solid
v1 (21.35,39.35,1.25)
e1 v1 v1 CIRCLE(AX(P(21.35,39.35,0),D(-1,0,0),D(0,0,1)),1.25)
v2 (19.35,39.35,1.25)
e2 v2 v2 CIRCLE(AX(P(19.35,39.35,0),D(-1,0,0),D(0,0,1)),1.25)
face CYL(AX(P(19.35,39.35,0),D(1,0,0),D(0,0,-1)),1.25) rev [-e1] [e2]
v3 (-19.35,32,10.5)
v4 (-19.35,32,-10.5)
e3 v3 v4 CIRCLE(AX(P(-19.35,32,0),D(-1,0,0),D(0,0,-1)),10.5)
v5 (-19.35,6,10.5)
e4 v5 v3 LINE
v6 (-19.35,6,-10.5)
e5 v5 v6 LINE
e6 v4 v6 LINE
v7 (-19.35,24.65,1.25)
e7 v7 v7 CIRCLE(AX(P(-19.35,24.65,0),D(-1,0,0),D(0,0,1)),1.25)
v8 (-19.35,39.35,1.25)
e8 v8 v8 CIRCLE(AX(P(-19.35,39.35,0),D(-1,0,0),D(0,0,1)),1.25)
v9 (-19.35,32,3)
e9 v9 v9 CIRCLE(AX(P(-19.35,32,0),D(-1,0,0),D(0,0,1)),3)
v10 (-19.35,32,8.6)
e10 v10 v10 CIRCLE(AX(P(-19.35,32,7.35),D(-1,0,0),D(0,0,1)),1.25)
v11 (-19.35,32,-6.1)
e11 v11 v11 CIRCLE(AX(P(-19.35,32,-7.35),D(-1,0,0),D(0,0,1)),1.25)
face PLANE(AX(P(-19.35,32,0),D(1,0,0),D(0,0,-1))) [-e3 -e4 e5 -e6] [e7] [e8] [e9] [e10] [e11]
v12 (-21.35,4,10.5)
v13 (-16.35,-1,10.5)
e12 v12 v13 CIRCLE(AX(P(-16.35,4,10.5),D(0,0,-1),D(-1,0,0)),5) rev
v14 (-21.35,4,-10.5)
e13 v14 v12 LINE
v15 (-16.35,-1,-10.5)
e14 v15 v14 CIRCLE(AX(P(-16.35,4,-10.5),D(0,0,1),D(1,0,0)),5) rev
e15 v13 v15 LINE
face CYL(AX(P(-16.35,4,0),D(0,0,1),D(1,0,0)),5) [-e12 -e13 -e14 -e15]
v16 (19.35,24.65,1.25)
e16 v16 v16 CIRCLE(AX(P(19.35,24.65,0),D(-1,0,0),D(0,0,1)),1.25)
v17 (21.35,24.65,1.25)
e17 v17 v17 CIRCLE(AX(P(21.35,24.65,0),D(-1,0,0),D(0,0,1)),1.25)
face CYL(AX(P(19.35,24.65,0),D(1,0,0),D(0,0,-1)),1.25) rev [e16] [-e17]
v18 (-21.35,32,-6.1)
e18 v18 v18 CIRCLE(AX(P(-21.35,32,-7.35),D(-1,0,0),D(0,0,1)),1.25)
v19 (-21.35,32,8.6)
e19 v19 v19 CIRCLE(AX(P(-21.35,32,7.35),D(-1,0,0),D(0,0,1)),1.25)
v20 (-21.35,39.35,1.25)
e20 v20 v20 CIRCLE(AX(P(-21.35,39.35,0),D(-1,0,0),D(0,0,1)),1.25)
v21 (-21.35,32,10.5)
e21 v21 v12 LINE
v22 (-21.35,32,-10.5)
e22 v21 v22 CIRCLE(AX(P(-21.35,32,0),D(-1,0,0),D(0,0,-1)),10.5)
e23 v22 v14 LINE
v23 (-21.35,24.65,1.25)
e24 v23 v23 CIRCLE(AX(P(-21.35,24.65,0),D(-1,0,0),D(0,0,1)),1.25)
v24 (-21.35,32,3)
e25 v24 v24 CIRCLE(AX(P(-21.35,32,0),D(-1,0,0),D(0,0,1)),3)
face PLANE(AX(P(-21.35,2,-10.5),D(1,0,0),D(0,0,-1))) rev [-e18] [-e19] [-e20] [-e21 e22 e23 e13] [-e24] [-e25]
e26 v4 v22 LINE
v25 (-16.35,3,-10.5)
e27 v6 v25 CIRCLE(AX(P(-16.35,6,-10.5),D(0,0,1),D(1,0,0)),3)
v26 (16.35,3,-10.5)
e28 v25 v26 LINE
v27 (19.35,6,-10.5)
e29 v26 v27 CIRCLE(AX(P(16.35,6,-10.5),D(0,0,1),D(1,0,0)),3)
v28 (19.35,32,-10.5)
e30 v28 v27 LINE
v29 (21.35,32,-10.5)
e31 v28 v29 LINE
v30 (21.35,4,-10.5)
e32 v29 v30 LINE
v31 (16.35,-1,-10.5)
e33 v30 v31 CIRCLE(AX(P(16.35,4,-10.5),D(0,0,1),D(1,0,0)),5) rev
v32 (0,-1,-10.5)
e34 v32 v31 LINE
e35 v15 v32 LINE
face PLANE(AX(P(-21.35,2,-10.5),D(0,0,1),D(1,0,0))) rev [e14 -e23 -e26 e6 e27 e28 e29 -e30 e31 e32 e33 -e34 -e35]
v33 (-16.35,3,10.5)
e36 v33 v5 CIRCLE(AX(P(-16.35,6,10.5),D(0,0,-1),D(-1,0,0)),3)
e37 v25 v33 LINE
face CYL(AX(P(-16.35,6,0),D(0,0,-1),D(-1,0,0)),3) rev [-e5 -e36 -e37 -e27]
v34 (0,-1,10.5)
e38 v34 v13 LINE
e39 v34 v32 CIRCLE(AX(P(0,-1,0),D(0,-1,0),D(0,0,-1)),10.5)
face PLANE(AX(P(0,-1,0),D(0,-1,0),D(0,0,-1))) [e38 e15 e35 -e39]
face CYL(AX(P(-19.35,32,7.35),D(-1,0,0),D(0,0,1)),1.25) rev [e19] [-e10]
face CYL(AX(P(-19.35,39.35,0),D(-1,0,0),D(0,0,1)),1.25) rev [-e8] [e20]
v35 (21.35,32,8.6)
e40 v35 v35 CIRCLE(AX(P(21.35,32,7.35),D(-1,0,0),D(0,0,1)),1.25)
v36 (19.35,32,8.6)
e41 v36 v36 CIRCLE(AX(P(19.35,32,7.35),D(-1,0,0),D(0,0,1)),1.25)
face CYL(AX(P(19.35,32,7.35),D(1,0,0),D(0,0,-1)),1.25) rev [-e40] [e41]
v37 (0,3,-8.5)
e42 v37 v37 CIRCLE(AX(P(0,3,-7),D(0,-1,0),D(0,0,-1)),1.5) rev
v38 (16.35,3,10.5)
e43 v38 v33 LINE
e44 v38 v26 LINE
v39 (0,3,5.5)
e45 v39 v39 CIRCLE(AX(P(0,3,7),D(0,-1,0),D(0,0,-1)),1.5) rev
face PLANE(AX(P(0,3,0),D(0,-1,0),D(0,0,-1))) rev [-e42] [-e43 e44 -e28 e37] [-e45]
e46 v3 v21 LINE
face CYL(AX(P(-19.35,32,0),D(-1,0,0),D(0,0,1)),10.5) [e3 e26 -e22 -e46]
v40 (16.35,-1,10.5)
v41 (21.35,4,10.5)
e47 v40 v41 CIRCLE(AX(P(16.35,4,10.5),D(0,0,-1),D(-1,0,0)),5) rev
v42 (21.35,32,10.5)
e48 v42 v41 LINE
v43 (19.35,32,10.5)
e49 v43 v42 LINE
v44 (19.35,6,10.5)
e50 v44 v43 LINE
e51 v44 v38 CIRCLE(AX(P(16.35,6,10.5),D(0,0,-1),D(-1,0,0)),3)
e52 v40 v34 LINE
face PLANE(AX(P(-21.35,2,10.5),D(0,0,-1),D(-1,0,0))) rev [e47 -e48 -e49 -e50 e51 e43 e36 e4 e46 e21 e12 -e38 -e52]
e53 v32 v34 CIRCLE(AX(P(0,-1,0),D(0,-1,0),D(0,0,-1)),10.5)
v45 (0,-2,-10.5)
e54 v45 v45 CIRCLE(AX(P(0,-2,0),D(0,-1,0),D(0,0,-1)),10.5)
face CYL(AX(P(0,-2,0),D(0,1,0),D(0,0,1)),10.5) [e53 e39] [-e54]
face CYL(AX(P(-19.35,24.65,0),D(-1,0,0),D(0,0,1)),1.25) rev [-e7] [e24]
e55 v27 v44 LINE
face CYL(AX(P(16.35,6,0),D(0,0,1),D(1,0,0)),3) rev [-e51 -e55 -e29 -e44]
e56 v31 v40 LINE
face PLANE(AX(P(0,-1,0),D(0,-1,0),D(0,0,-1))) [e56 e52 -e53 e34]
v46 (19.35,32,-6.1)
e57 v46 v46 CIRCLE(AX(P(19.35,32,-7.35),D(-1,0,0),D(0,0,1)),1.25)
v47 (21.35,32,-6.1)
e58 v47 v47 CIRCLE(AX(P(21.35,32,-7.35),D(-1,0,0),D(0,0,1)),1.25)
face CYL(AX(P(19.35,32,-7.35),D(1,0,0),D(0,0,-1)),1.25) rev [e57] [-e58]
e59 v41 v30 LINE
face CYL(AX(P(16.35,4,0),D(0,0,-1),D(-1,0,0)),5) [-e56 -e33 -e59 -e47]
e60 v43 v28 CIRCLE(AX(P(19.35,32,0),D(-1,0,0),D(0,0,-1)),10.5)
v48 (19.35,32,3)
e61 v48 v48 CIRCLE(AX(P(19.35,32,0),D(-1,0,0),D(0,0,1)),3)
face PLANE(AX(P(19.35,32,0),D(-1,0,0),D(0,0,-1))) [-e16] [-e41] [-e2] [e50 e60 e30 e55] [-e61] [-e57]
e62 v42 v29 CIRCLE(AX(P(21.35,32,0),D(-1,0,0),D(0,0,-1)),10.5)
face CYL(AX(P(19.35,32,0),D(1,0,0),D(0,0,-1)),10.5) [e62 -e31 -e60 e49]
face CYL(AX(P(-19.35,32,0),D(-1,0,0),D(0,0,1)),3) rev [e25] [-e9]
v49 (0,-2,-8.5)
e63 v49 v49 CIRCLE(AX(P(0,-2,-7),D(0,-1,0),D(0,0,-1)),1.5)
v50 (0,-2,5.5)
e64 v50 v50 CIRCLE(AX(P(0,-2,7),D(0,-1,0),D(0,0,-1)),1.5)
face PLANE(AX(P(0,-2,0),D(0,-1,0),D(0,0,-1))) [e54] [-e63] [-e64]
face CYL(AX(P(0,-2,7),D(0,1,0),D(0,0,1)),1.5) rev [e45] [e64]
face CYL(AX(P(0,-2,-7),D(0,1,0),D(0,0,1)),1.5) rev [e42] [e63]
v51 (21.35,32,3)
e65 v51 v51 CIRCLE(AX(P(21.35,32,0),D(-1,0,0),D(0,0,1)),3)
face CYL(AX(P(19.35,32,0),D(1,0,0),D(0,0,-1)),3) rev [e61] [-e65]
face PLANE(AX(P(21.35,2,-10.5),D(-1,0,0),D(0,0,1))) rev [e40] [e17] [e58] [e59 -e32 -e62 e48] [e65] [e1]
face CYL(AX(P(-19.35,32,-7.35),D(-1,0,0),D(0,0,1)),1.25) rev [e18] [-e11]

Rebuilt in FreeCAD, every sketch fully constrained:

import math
import FreeCAD as App
import Part
import Sketcher
from FreeCAD import Vector
Q = App.Units.Quantity


def edges_at(feature, points):
    """Names of the edges that pass closest to the given points."""
    edges = feature.Shape.Edges
    near = lambda p: min(range(len(edges)), key=lambda i: edges[i].distToShape(Part.Vertex(*p))[0])
    return sorted({f"Edge{near(p) + 1}" for p in points})

doc = App.newDocument("Part")
params = doc.addObject("Spreadsheet::Sheet", "Params")
for row, (alias, value) in enumerate([
    ("sketch1_diameter", "3 mm"),
    ("sketch1_height", "21 mm"),
    ("sketch1_width", "42.7 mm"),
    ("pad1_length", "2 mm"),
    ("sketch2_diameter", "6 mm"),
    ("sketch2_diameter2", "2.5 mm"),
    ("sketch2_radius", "10.5 mm"),
    ("sketch2_width", "30 mm"),
    ("pad2_length", "2 mm"),
    ("sketch3_height", "21 mm"),
    ("sketch3_width", "42.7 mm"),
    ("pad3_length", "1 mm"),
    ("pad3_length2", "3 mm"),
    ("sketch4_diameter", "21 mm"),
    ("sketch4_diameter2", "3 mm"),
    ("pad4_length", "1 mm"),
    ("fillet_radius", "3 mm"),
    ("fillet2_radius", "5 mm"),
    ("sketch5_diameter", "3 mm"),
    ("pocket1_length", "4 mm"),
], start=1):
    params.set(f"A{row}", alias)
    params.set(f"B{row}", "=" + value)
    params.setAlias(f"B{row}", alias)

body = doc.addObject("PartDesign::Body", "Body")

sketch1 = body.newObject("Sketcher::SketchObject", "Sketch")
sketch1.AttachmentSupport = (doc.getObject("XZ_Plane"), [""])
sketch1.MapMode = "FlatFace"
sketch1.addGeometry(Part.LineSegment(Vector(-21.35, -10.5, 0), Vector(-21.35, 10.5, 0)), False)
sketch1.addGeometry(Part.LineSegment(Vector(-21.35, 10.5, 0), Vector(21.35, 10.5, 0)), False)
sketch1.addGeometry(Part.LineSegment(Vector(21.35, 10.5, 0), Vector(21.35, -10.5, 0)), False)
sketch1.addGeometry(Part.LineSegment(Vector(21.35, -10.5, 0), Vector(-21.35, -10.5, 0)), False)
sketch1.addGeometry(Part.Circle(Vector(-7.5, 5, 0), Vector(0, 0, 1), 1.5), False)
sketch1.addGeometry(Part.Circle(Vector(7.5, 5, 0), Vector(0, 0, 1), 1.5), False)
sketch1.addGeometry(Part.BSplineCurve([Vector(0, -7.407272, 0), Vector(2.092471, -7.358009, 0), Vector(3.043739, -2.951913, 0), Vector(6.007732, -1.626733, 0), Vector(8.017951, -1.550908, 0)], [4, 1, 4], [0, 0.496822763, 1], False, 3, [1, 1, 1, 1, 1], False), False)
sketch1.addGeometry(Part.LineSegment(Vector(8.017951, -1.550908, 0), Vector(12.912588, -1.550908, 0)), False)
sketch1.addGeometry(Part.ArcOfCircle(Part.Circle(Vector(13.029613, 0.117026, 0), Vector(0, 0, 1), 1.672034), math.radians(-94.013412), math.radians(-4.013412)), False)
sketch1.addGeometry(Part.ArcOfCircle(Part.Circle(Vector(13.029613, -0.117026, 0), Vector(0, 0, 1), 1.672034), math.radians(4.013412), math.radians(94.013412)), False)
sketch1.addGeometry(Part.LineSegment(Vector(12.912588, 1.550908, 0), Vector(8.017951, 1.550908, 0)), False)
sketch1.addGeometry(Part.BSplineCurve([Vector(0, 7.407272, 0), Vector(2.092471, 7.358009, 0), Vector(3.043739, 2.951913, 0), Vector(6.007732, 1.626733, 0), Vector(8.017951, 1.550908, 0)], [4, 1, 4], [0, 0.496822763, 1], False, 3, [1, 1, 1, 1, 1], False), False)
sketch1.addGeometry(Part.BSplineCurve([Vector(0, 7.407272, 0), Vector(-2.092471, 7.358009, 0), Vector(-3.043739, 2.951913, 0), Vector(-6.007732, 1.626733, 0), Vector(-8.017951, 1.550908, 0)], [4, 1, 4], [0, 0.496822763, 1], False, 3, [1, 1, 1, 1, 1], False), False)
sketch1.addGeometry(Part.LineSegment(Vector(-8.017951, 1.550908, 0), Vector(-12.912588, 1.550908, 0)), False)
sketch1.addGeometry(Part.ArcOfCircle(Part.Circle(Vector(-13.029613, -0.117026, 0), Vector(0, 0, 1), 1.672034), math.radians(85.986588), math.radians(175.986588)), False)
sketch1.addGeometry(Part.ArcOfCircle(Part.Circle(Vector(-13.029613, 0.117026, 0), Vector(0, 0, 1), 1.672034), math.radians(-175.986588), math.radians(-85.986588)), False)
sketch1.addGeometry(Part.LineSegment(Vector(-12.912588, -1.550908, 0), Vector(-8.017951, -1.550908, 0)), False)
sketch1.addGeometry(Part.BSplineCurve([Vector(0, -7.407272, 0), Vector(-2.092471, -7.358009, 0), Vector(-3.043739, -2.951913, 0), Vector(-6.007732, -1.626733, 0), Vector(-8.017951, -1.550908, 0)], [4, 1, 4], [0, 0.496822763, 1], False, 3, [1, 1, 1, 1, 1], False), False)
sketch1.addGeometry(Part.Circle(Vector(-7.5, -5, 0), Vector(0, 0, 1), 1.5), False)
sketch1.addGeometry(Part.Circle(Vector(7.5, -5, 0), Vector(0, 0, 1), 1.5), False)
sketch1.addConstraint(Sketcher.Constraint("Block", 6))
sketch1.addConstraint(Sketcher.Constraint("Block", 11))
sketch1.addConstraint(Sketcher.Constraint("Block", 12))
sketch1.addConstraint(Sketcher.Constraint("Block", 17))
sketch1.addConstraint(Sketcher.Constraint("Coincident", 0, 2, 1, 1))
sketch1.addConstraint(Sketcher.Constraint("Coincident", 1, 2, 2, 1))
sketch1.addConstraint(Sketcher.Constraint("Coincident", 2, 2, 3, 1))
sketch1.addConstraint(Sketcher.Constraint("Coincident", 3, 2, 0, 1))
sketch1.addConstraint(Sketcher.Constraint("Coincident", 6, 2, 7, 1))
sketch1.addConstraint(Sketcher.Constraint("Coincident", 7, 2, 8, 1))
sketch1.addConstraint(Sketcher.Constraint("Coincident", 8, 2, 9, 1))
sketch1.addConstraint(Sketcher.Constraint("Coincident", 9, 2, 10, 1))
sketch1.addConstraint(Sketcher.Constraint("Coincident", 10, 2, 11, 2))
sketch1.addConstraint(Sketcher.Constraint("Coincident", 12, 2, 13, 1))
sketch1.addConstraint(Sketcher.Constraint("Coincident", 13, 2, 14, 1))
sketch1.addConstraint(Sketcher.Constraint("Coincident", 14, 2, 15, 1))
sketch1.addConstraint(Sketcher.Constraint("Coincident", 15, 2, 16, 1))
sketch1.addConstraint(Sketcher.Constraint("Coincident", 16, 2, 17, 2))
sketch1.addConstraint(Sketcher.Constraint("Vertical", 0))
sketch1.addConstraint(Sketcher.Constraint("Horizontal", 1))
sketch1.addConstraint(Sketcher.Constraint("Vertical", 2))
sketch1.addConstraint(Sketcher.Constraint("Horizontal", 3))
sketch1.addConstraint(Sketcher.Constraint("Horizontal", 7))
sketch1.addConstraint(Sketcher.Constraint("Horizontal", 10))
sketch1.addConstraint(Sketcher.Constraint("Horizontal", 13))
sketch1.addConstraint(Sketcher.Constraint("Horizontal", 16))
sketch1.addConstraint(Sketcher.Constraint("Equal", 4, 5))
sketch1.addConstraint(Sketcher.Constraint("Equal", 8, 9))
sketch1.addConstraint(Sketcher.Constraint("Equal", 9, 14))
sketch1.addConstraint(Sketcher.Constraint("Equal", 14, 15))
sketch1.addConstraint(Sketcher.Constraint("Equal", 5, 18))
sketch1.addConstraint(Sketcher.Constraint("Equal", 18, 19))
sketch1.addConstraint(Sketcher.Constraint("Symmetric", 8, 3, 14, 3, -1, 1))
sketch1.addConstraint(Sketcher.Constraint("Symmetric", 9, 3, 15, 3, -1, 1))
sketch1.addConstraint(Sketcher.Constraint("Symmetric", 5, 3, 18, 3, -1, 1))
sketch1.addConstraint(Sketcher.Constraint("Symmetric", 4, 3, 19, 3, -1, 1))
sketch1.addConstraint(Sketcher.Constraint("Symmetric", 0, 2, 2, 2, -1, 1))
sketch1.addConstraint(Sketcher.Constraint("Symmetric", 4, 3, 5, 3, -2))
sketch1.addConstraint(Sketcher.Constraint("Symmetric", 9, 3, 14, 3, -2))
sketch1.addConstraint(Sketcher.Constraint("Diameter", 4, Q("3 mm")))
sketch1.addConstraint(Sketcher.Constraint("DistanceY", 0, 1, 0, 2, Q("21 mm")))
sketch1.addConstraint(Sketcher.Constraint("DistanceX", 1, 1, 1, 2, Q("42.7 mm")))
sketch1.addConstraint(Sketcher.Constraint("DistanceY", -1, 1, 4, 3, Q("5 mm")))
sketch1.addConstraint(Sketcher.Constraint("DistanceX", 4, 3, 5, 3, Q("15 mm")))
sketch1.addConstraint(Sketcher.Constraint("Radius", 8, Q("1.672034 mm")))
sketch1.addConstraint(Sketcher.Constraint("DistanceX", 7, 1, 7, 2, Q("4.894637 mm")))
sketch1.addConstraint(Sketcher.Constraint("DistanceY", 9, 3, 8, 3, Q("0.234051 mm")))
sketch1.setExpression("Constraints[39]", "Params.sketch1_diameter")
sketch1.setExpression("Constraints[40]", "Params.sketch1_height")
sketch1.setExpression("Constraints[41]", "Params.sketch1_width")
pad1 = body.newObject("PartDesign::Pad", "Pad")
pad1.Profile = sketch1
pad1.setExpression("Length", "Params.pad1_length")
pad1.Reversed = True

sketch2 = body.newObject("Sketcher::SketchObject", "Sketch001")
sketch2.AttachmentSupport = (doc.getObject("YZ_Plane"), [""])
sketch2.MapMode = "FlatFace"
sketch2.AttachmentOffset = App.Placement(Vector(0, 0, -21.35), App.Rotation())
sketch2.addGeometry(Part.LineSegment(Vector(32, -10.5, 0), Vector(2, -10.5, 0)), False)
sketch2.addGeometry(Part.LineSegment(Vector(2, -10.5, 0), Vector(2, 10.5, 0)), False)
sketch2.addGeometry(Part.LineSegment(Vector(2, 10.5, 0), Vector(32, 10.5, 0)), False)
sketch2.addGeometry(Part.ArcOfCircle(Part.Circle(Vector(32, 0, 0), Vector(0, 0, 1), 10.5), math.radians(-90), math.radians(90)), False)
sketch2.addGeometry(Part.Circle(Vector(24.6, 0, 0), Vector(0, 0, 1), 1.2), False)
sketch2.addGeometry(Part.Circle(Vector(32, 7.3, 0), Vector(0, 0, 1), 1.2), False)
sketch2.addGeometry(Part.Circle(Vector(32, 0, 0), Vector(0, 0, 1), 3), False)
sketch2.addGeometry(Part.Circle(Vector(32, -7.3, 0), Vector(0, 0, 1), 1.2), False)
sketch2.addGeometry(Part.Circle(Vector(39.4, 0, 0), Vector(0, 0, 1), 1.2), False)
sketch2.addConstraint(Sketcher.Constraint("Coincident", 0, 2, 1, 1))
sketch2.addConstraint(Sketcher.Constraint("Coincident", 1, 2, 2, 1))
sketch2.addConstraint(Sketcher.Constraint("Tangent", 2, 2, 3, 2))
sketch2.addConstraint(Sketcher.Constraint("Tangent", 3, 1, 0, 1))
sketch2.addConstraint(Sketcher.Constraint("Horizontal", 0))
sketch2.addConstraint(Sketcher.Constraint("Vertical", 1))
sketch2.addConstraint(Sketcher.Constraint("Horizontal", 2))
sketch2.addConstraint(Sketcher.Constraint("Coincident", 6, 3, 3, 3))
sketch2.addConstraint(Sketcher.Constraint("Equal", 4, 5))
sketch2.addConstraint(Sketcher.Constraint("Equal", 5, 7))
sketch2.addConstraint(Sketcher.Constraint("Equal", 7, 8))
sketch2.addConstraint(Sketcher.Constraint("Symmetric", 5, 3, 7, 3, -1))
sketch2.addConstraint(Sketcher.Constraint("PointOnObject", 3, 3, -1))
sketch2.addConstraint(Sketcher.Constraint("PointOnObject", 4, 3, -1))
sketch2.addConstraint(Sketcher.Constraint("PointOnObject", 8, 3, -1))
sketch2.addConstraint(Sketcher.Constraint("Vertical", 3, 3, 5, 3))
sketch2.addConstraint(Sketcher.Constraint("Diameter", 6, Q("6 mm")))
sketch2.addConstraint(Sketcher.Constraint("Diameter", 4, Q("2.5 mm")))
sketch2.addConstraint(Sketcher.Constraint("Radius", 3, Q("10.5 mm")))
sketch2.addConstraint(Sketcher.Constraint("DistanceX", 0, 2, 0, 1, Q("30 mm")))
sketch2.addConstraint(Sketcher.Constraint("DistanceX", -1, 1, 3, 3, Q("32 mm")))
sketch2.addConstraint(Sketcher.Constraint("DistanceY", 7, 3, 5, 3, Q("14.7 mm")))
sketch2.addConstraint(Sketcher.Constraint("DistanceX", 4, 3, 8, 3, Q("14.7 mm")))
sketch2.addConstraint(Sketcher.Constraint("DistanceX", -1, 1, 4, 3, Q("24.65 mm")))
sketch2.setExpression("Constraints[16]", "Params.sketch2_diameter")
sketch2.setExpression("Constraints[17]", "Params.sketch2_diameter2")
sketch2.setExpression("Constraints[18]", "Params.sketch2_radius")
sketch2.setExpression("Constraints[19]", "Params.sketch2_width")
pad2 = body.newObject("PartDesign::Pad", "Pad001")
pad2.Profile = sketch2
pad2.setExpression("Length", "Params.pad2_length")
doc.recompute()

mirrored = body.newObject("PartDesign::Mirrored", "Mirrored")
mirrored.Originals = [pad2]
mirrored.MirrorPlane = (doc.getObject("YZ_Plane"), [""])
body.Tip = mirrored

sketch3 = body.newObject("Sketcher::SketchObject", "Sketch002")
sketch3.AttachmentSupport = (doc.getObject("XZ_Plane"), [""])
sketch3.MapMode = "FlatFace"
sketch3.addGeometry(Part.LineSegment(Vector(-21, 10, 0), Vector(-21, -10, 0)), False)
sketch3.addGeometry(Part.LineSegment(Vector(-21, -10, 0), Vector(21, -10, 0)), False)
sketch3.addGeometry(Part.LineSegment(Vector(21, -10, 0), Vector(21, 10, 0)), False)
sketch3.addGeometry(Part.LineSegment(Vector(21, 10, 0), Vector(-21, 10, 0)), False)
sketch3.addConstraint(Sketcher.Constraint("Coincident", 0, 2, 1, 1))
sketch3.addConstraint(Sketcher.Constraint("Coincident", 1, 2, 2, 1))
sketch3.addConstraint(Sketcher.Constraint("Coincident", 2, 2, 3, 1))
sketch3.addConstraint(Sketcher.Constraint("Coincident", 3, 2, 0, 1))
sketch3.addConstraint(Sketcher.Constraint("Vertical", 0))
sketch3.addConstraint(Sketcher.Constraint("Horizontal", 1))
sketch3.addConstraint(Sketcher.Constraint("Vertical", 2))
sketch3.addConstraint(Sketcher.Constraint("Horizontal", 3))
sketch3.addConstraint(Sketcher.Constraint("Symmetric", 0, 2, 2, 2, -1, 1))
sketch3.addConstraint(Sketcher.Constraint("DistanceY", 0, 2, 0, 1, Q("21 mm")))
sketch3.addConstraint(Sketcher.Constraint("DistanceX", 1, 1, 1, 2, Q("42.7 mm")))
sketch3.setExpression("Constraints[9]", "Params.sketch3_height")
sketch3.setExpression("Constraints[10]", "Params.sketch3_width")
pad3 = body.newObject("PartDesign::Pad", "Pad002")
pad3.Profile = sketch3
pad3.Type = "TwoLengths"
pad3.setExpression("Length", "Params.pad3_length")
pad3.setExpression("Length2", "Params.pad3_length2")

sketch4 = body.newObject("Sketcher::SketchObject", "Sketch003")
sketch4.AttachmentSupport = (doc.getObject("XZ_Plane"), [""])
sketch4.MapMode = "FlatFace"
sketch4.AttachmentOffset = App.Placement(Vector(0, 0, 1), App.Rotation())
sketch4.addGeometry(Part.Circle(Vector(0, 0, 0), Vector(0, 0, 1), 10.5), False)
sketch4.addGeometry(Part.Circle(Vector(0, 7, 0), Vector(0, 0, 1), 1.5), False)
sketch4.addGeometry(Part.Circle(Vector(0, -7, 0), Vector(0, 0, 1), 1.5), False)
sketch4.addConstraint(Sketcher.Constraint("Coincident", 0, 3, -1, 1))
sketch4.addConstraint(Sketcher.Constraint("Equal", 1, 2))
sketch4.addConstraint(Sketcher.Constraint("Symmetric", 1, 3, 2, 3, -1, 1))
sketch4.addConstraint(Sketcher.Constraint("PointOnObject", 1, 3, -2))
sketch4.addConstraint(Sketcher.Constraint("Diameter", 0, Q("21 mm")))
sketch4.addConstraint(Sketcher.Constraint("Diameter", 1, Q("3 mm")))
sketch4.addConstraint(Sketcher.Constraint("DistanceY", -1, 1, 1, 3, Q("7 mm")))
sketch4.setExpression("Constraints[4]", "Params.sketch4_diameter")
sketch4.setExpression("Constraints[5]", "Params.sketch4_diameter2")
pad4 = body.newObject("PartDesign::Pad", "Pad003")
pad4.Profile = sketch4
pad4.setExpression("Length", "Params.pad4_length")
doc.recompute()

fillet = body.newObject("PartDesign::Fillet", "Fillet")
fillet.Base = (pad4, edges_at(pad4, [(19.35, 3, 0), (-19.35, 3, 0)]))
fillet.setExpression("Radius", "Params.fillet_radius")
doc.recompute()

fillet2 = body.newObject("PartDesign::Fillet", "Fillet001")
fillet2.Base = (fillet, edges_at(fillet, [(-21.35, -1, 0), (21.35, -1, 0)]))
fillet2.setExpression("Radius", "Params.fillet2_radius")

sketch5 = body.newObject("Sketcher::SketchObject", "Sketch004")
sketch5.AttachmentSupport = (doc.getObject("XZ_Plane"), [""])
sketch5.MapMode = "FlatFace"
sketch5.AttachmentOffset = App.Placement(Vector(0, 0, -3), App.Rotation())
sketch5.addGeometry(Part.Circle(Vector(0, 7, 0), Vector(0, 0, 1), 1.5), False)
sketch5.addGeometry(Part.Circle(Vector(0, -7, 0), Vector(0, 0, 1), 1.5), False)
sketch5.addConstraint(Sketcher.Constraint("Equal", 0, 1))
sketch5.addConstraint(Sketcher.Constraint("Symmetric", 0, 3, 1, 3, -1, 1))
sketch5.addConstraint(Sketcher.Constraint("PointOnObject", 0, 3, -2))
sketch5.addConstraint(Sketcher.Constraint("Diameter", 0, Q("3 mm")))
sketch5.addConstraint(Sketcher.Constraint("DistanceY", -1, 1, 0, 3, Q("7 mm")))
sketch5.setExpression("Constraints[3]", "Params.sketch5_diameter")
pocket1 = body.newObject("PartDesign::Pocket", "Pocket")
pocket1.Profile = sketch5
pocket1.setExpression("Length", "Params.pocket1_length")
pocket1.Reversed = True

doc.recompute()
